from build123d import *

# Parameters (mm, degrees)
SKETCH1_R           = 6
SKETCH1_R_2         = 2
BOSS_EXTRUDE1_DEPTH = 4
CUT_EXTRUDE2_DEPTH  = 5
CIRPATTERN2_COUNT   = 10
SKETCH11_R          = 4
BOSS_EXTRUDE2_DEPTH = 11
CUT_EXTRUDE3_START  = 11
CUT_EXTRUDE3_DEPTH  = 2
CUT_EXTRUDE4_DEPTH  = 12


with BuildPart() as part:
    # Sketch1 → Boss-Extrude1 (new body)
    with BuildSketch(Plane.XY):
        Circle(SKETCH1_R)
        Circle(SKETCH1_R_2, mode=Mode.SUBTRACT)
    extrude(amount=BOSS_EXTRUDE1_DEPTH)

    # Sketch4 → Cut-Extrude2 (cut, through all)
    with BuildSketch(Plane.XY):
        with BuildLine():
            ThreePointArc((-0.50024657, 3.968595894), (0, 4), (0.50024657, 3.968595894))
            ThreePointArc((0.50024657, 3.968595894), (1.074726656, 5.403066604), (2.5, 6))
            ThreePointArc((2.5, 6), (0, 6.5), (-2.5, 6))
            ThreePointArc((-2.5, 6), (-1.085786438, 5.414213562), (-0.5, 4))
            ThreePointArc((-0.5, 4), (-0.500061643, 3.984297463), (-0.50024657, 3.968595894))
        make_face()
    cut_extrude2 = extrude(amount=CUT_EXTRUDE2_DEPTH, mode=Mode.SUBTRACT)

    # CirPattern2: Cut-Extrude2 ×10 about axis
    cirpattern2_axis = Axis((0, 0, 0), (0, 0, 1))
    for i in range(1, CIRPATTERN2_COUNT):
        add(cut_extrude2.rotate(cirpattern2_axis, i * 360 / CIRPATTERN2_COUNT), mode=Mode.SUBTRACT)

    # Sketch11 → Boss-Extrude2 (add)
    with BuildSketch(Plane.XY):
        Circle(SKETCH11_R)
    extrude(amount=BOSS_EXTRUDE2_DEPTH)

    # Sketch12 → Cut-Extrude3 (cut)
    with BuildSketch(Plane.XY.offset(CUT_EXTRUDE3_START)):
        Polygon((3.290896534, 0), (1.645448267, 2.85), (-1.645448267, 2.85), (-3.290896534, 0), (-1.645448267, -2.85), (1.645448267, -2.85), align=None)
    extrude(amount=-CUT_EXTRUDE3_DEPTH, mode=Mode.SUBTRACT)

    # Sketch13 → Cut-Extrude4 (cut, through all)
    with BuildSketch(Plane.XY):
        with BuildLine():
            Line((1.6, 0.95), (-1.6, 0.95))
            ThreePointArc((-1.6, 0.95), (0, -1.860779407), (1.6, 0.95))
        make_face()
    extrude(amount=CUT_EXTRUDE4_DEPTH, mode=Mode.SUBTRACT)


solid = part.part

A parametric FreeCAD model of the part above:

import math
import FreeCAD as App
import Part
import Sketcher

V = App.Vector
Q = App.Units.Quantity

doc = App.newDocument("Part")
params = doc.addObject("Spreadsheet::Sheet", "Params")
for row, (alias, value) in enumerate([
    ("sketch1_diameter", "12 mm"),
    ("sketch1_diameter2", "4 mm"),
    ("pad1_length", "4 mm"),
    ("sketch2_radius", "4 mm"),
    ("sketch2_radius2", "2 mm"),
    ("sketch2_radius3", "6.5 mm"),
    ("sketch3_diameter", "8 mm"),
    ("pad2_length", "11 mm"),
    ("pocket2_length", "2 mm"),
    ("sketch5_width", "3.2 mm"),
], start=1):
    params.set(f"A{row}", alias)
    params.set(f"B{row}", "=" + value)
    params.setAlias(f"B{row}", alias)

body = doc.addObject("PartDesign::Body", "Body")

# Sketch on XY plane
sketch1 = body.newObject("Sketcher::SketchObject", "Sketch")
sketch1.AttachmentSupport = (doc.getObject("XY_Plane"), [""])
sketch1.MapMode = "FlatFace"
sketch1.addGeometry(Part.Circle(V(0, 0, 0), V(0, 0, 1), 6), False)
sketch1.addGeometry(Part.Circle(V(0, 0, 0), V(0, 0, 1), 2), False)
sketch1.addConstraint(Sketcher.Constraint("Coincident", 0, 3, -1, 1))
sketch1.addConstraint(Sketcher.Constraint("Coincident", 1, 3, -1, 1))
sketch1.addConstraint(Sketcher.Constraint("Diameter", 0, 12.0))
sketch1.addConstraint(Sketcher.Constraint("Diameter", 1, 4.0))
sketch1.setExpression("Constraints[2]", "Params.sketch1_diameter")
sketch1.setExpression("Constraints[3]", "Params.sketch1_diameter2")
pad1 = body.newObject("PartDesign::Pad", "Pad")
pad1.Profile = sketch1
pad1.setExpression("Length", "Params.pad1_length")

# Sketch on XY plane
sketch2 = body.newObject("Sketcher::SketchObject", "Sketch001")
sketch2.AttachmentSupport = (doc.getObject("XY_Plane"), [""])
sketch2.MapMode = "FlatFace"
sketch2.addGeometry(Part.ArcOfCircle(Part.Circle(V(0, 0, 0), V(0, 0, 1), 4), math.radians(82.82), math.radians(97.18)), False)
sketch2.addGeometry(Part.ArcOfCircle(Part.Circle(V(2.5, 4, 0), V(0, 0, 1), 2), math.radians(90), math.radians(181)), False)
sketch2.addGeometry(Part.ArcOfCircle(Part.Circle(V(0, 0, 0), V(0, 0, 1), 6.5), math.radians(67), math.radians(113)), False)
sketch2.addGeometry(Part.ArcOfCircle(Part.Circle(V(-2.5, 4, 0), V(0, 0, 1), 2), math.radians(0), math.radians(90)), False)
sketch2.addGeometry(Part.ArcOfCircle(Part.Circle(V(-2.5, 4, 0), V(0, 0, 1), 2), math.radians(-0.9), math.radians(0)), False)
sketch2.addConstraint(Sketcher.Constraint("Coincident", 0, 1, 1, 2))
sketch2.addConstraint(Sketcher.Constraint("Coincident", 1, 1, 2, 1))
sketch2.addConstraint(Sketcher.Constraint("Coincident", 2, 2, 3, 2))
sketch2.addConstraint(Sketcher.Constraint("Tangent", 3, 1, 4, 2))
sketch2.addConstraint(Sketcher.Constraint("Coincident", 4, 1, 0, 2))
sketch2.addConstraint(Sketcher.Constraint("Coincident", 0, 3, -1, 1))
sketch2.addConstraint(Sketcher.Constraint("Coincident", 2, 3, -1, 1))
sketch2.addConstraint(Sketcher.Constraint("Equal", 1, 3))
sketch2.addConstraint(Sketcher.Constraint("Symmetric", 1, 3, 3, 3, -2))
sketch2.addConstraint(Sketcher.Constraint("Horizontal", 4, 3, 3, 1))
sketch2.addConstraint(Sketcher.Constraint("Vertical", 3, 3, 2, 2))
sketch2.addConstraint(Sketcher.Constraint("Radius", 0, 4.0))
sketch2.addConstraint(Sketcher.Constraint("Radius", 1, 2.0))
sketch2.addConstraint(Sketcher.Constraint("Radius", 2, 6.5))
sketch2.addConstraint(Sketcher.Constraint("DistanceY", -1, 1, 1, 3, 4.0))
sketch2.addConstraint(Sketcher.Constraint("Radius", 4, 1.999983))
sketch2.setExpression("Constraints[11]", "Params.sketch2_radius")
sketch2.setExpression("Constraints[12]", "Params.sketch2_radius2")
sketch2.setExpression("Constraints[13]", "Params.sketch2_radius3")
pocket1 = body.newObject("PartDesign::Pocket", "Pocket")
pocket1.Profile = sketch2
pocket1.Type = "ThroughAll"
pocket1.Reversed = True
doc.recompute()

polarpattern = body.newObject("PartDesign::PolarPattern", "PolarPattern")
polarpattern.Originals = [pocket1]
polarpattern.Axis = (doc.getObject("Z_Axis"), [""])
polarpattern.Angle = 360
polarpattern.Occurrences = 10
body.Tip = polarpattern

# Sketch on XY plane
sketch3 = body.newObject("Sketcher::SketchObject", "Sketch002")
sketch3.AttachmentSupport = (doc.getObject("XY_Plane"), [""])
sketch3.MapMode = "FlatFace"
sketch3.addGeometry(Part.Circle(V(0, 0, 0), V(0, 0, 1), 4), False)
sketch3.addConstraint(Sketcher.Constraint("Coincident", 0, 3, -1, 1))
sketch3.addConstraint(Sketcher.Constraint("Diameter", 0, 8.0))
sketch3.setExpression("Constraints[1]", "Params.sketch3_diameter")
pad2 = body.newObject("PartDesign::Pad", "Pad001")
pad2.Profile = sketch3
pad2.setExpression("Length", "Params.pad2_length")

# Sketch on XY plane
sketch4 = body.newObject("Sketcher::SketchObject", "Sketch003")
sketch4.AttachmentSupport = (doc.getObject("XY_Plane"), [""])
sketch4.MapMode = "FlatFace"
sketch4.AttachmentOffset = App.Placement(V(0, 0, 11), App.Rotation())
sketch4.addGeometry(Part.LineSegment(V(3.3, 0, 0), V(1.6, 2.9, 0)), False)
sketch4.addGeometry(Part.LineSegment(V(1.6, 2.9, 0), V(-1.6, 2.9, 0)), False)
sketch4.addGeometry(Part.LineSegment(V(-1.6, 2.9, 0), V(-3.3, 0, 0)), False)
sketch4.addGeometry(Part.LineSegment(V(-3.3, 0, 0), V(-1.6, -2.9, 0)), False)
sketch4.addGeometry(Part.LineSegment(V(-1.6, -2.9, 0), V(1.6, -2.9, 0)), False)
sketch4.addGeometry(Part.LineSegment(V(1.6, -2.9, 0), V(3.3, 0, 0)), False)
sketch4.addConstraint(Sketcher.Constraint("Coincident", 0, 2, 1, 1))
sketch4.addConstraint(Sketcher.Constraint("Coincident", 1, 2, 2, 1))
sketch4.addConstraint(Sketcher.Constraint("Coincident", 2, 2, 3, 1))
sketch4.addConstraint(Sketcher.Constraint("Coincident", 3, 2, 4, 1))
sketch4.addConstraint(Sketcher.Constraint("Coincident", 4, 2, 5, 1))
sketch4.addConstraint(Sketcher.Constraint("Coincident", 5, 2, 0, 1))
sketch4.addConstraint(Sketcher.Constraint("Horizontal", 1))
sketch4.addConstraint(Sketcher.Constraint("Horizontal", 4))
sketch4.addConstraint(Sketcher.Constraint("Symmetric", 0, 2, 3, 2, -1, 1))
sketch4.addConstraint(Sketcher.Constraint("Symmetric", 2, 2, 5, 2, -1, 1))
sketch4.addConstraint(Sketcher.Constraint("PointOnObject", 2, 2, -1))
sketch4.addConstraint(Sketcher.Constraint("Parallel", 2, 5))
sketch4.addConstraint(Sketcher.Constraint("Vertical", 1, 2, 3, 2))
sketch4.addConstraint(Sketcher.Constraint("Angle", 0, Q("120 deg")))
sketch4.addConstraint(Sketcher.Constraint("DistanceY", 3, 2, 1, 2, 5.7))
sketch4.addConstraint(Sketcher.Constraint("DistanceX", 1, 2, 1, 1, 3.290897))
pocket2 = body.newObject("PartDesign::Pocket", "Pocket001")
pocket2.Profile = sketch4
pocket2.setExpression("Length", "Params.pocket2_length")

# Sketch on XY plane
sketch5 = body.newObject("Sketcher::SketchObject", "Sketch004")
sketch5.AttachmentSupport = (doc.getObject("XY_Plane"), [""])
sketch5.MapMode = "FlatFace"
sketch5.addGeometry(Part.LineSegment(V(1.6, 0.9, 0), V(-1.6, 0.9, 0)), False)
sketch5.addGeometry(Part.ArcOfCircle(Part.Circle(V(0, 0, 0), V(0, 0, 1), 1.9), math.radians(149), math.radians(391)), False)
sketch5.addConstraint(Sketcher.Constraint("Coincident", 0, 1, 1, 2))
sketch5.addConstraint(Sketcher.Constraint("Coincident", 1, 1, 0, 2))
sketch5.addConstraint(Sketcher.Constraint("Horizontal", 0))
sketch5.addConstraint(Sketcher.Constraint("Coincident", 1, 3, -1, 1))
sketch5.addConstraint(Sketcher.Constraint("DistanceX", 0, 2, 0, 1, 3.2))
sketch5.addConstraint(Sketcher.Constraint("DistanceY", -1, 1, 0, 1, 0.95))
sketch5.setExpression("Constraints[4]", "Params.sketch5_width")
pocket3 = body.newObject("PartDesign::Pocket", "Pocket002")
pocket3.Profile = sketch5
pocket3.Type = "ThroughAll"
pocket3.Reversed = True

doc.recompute()
